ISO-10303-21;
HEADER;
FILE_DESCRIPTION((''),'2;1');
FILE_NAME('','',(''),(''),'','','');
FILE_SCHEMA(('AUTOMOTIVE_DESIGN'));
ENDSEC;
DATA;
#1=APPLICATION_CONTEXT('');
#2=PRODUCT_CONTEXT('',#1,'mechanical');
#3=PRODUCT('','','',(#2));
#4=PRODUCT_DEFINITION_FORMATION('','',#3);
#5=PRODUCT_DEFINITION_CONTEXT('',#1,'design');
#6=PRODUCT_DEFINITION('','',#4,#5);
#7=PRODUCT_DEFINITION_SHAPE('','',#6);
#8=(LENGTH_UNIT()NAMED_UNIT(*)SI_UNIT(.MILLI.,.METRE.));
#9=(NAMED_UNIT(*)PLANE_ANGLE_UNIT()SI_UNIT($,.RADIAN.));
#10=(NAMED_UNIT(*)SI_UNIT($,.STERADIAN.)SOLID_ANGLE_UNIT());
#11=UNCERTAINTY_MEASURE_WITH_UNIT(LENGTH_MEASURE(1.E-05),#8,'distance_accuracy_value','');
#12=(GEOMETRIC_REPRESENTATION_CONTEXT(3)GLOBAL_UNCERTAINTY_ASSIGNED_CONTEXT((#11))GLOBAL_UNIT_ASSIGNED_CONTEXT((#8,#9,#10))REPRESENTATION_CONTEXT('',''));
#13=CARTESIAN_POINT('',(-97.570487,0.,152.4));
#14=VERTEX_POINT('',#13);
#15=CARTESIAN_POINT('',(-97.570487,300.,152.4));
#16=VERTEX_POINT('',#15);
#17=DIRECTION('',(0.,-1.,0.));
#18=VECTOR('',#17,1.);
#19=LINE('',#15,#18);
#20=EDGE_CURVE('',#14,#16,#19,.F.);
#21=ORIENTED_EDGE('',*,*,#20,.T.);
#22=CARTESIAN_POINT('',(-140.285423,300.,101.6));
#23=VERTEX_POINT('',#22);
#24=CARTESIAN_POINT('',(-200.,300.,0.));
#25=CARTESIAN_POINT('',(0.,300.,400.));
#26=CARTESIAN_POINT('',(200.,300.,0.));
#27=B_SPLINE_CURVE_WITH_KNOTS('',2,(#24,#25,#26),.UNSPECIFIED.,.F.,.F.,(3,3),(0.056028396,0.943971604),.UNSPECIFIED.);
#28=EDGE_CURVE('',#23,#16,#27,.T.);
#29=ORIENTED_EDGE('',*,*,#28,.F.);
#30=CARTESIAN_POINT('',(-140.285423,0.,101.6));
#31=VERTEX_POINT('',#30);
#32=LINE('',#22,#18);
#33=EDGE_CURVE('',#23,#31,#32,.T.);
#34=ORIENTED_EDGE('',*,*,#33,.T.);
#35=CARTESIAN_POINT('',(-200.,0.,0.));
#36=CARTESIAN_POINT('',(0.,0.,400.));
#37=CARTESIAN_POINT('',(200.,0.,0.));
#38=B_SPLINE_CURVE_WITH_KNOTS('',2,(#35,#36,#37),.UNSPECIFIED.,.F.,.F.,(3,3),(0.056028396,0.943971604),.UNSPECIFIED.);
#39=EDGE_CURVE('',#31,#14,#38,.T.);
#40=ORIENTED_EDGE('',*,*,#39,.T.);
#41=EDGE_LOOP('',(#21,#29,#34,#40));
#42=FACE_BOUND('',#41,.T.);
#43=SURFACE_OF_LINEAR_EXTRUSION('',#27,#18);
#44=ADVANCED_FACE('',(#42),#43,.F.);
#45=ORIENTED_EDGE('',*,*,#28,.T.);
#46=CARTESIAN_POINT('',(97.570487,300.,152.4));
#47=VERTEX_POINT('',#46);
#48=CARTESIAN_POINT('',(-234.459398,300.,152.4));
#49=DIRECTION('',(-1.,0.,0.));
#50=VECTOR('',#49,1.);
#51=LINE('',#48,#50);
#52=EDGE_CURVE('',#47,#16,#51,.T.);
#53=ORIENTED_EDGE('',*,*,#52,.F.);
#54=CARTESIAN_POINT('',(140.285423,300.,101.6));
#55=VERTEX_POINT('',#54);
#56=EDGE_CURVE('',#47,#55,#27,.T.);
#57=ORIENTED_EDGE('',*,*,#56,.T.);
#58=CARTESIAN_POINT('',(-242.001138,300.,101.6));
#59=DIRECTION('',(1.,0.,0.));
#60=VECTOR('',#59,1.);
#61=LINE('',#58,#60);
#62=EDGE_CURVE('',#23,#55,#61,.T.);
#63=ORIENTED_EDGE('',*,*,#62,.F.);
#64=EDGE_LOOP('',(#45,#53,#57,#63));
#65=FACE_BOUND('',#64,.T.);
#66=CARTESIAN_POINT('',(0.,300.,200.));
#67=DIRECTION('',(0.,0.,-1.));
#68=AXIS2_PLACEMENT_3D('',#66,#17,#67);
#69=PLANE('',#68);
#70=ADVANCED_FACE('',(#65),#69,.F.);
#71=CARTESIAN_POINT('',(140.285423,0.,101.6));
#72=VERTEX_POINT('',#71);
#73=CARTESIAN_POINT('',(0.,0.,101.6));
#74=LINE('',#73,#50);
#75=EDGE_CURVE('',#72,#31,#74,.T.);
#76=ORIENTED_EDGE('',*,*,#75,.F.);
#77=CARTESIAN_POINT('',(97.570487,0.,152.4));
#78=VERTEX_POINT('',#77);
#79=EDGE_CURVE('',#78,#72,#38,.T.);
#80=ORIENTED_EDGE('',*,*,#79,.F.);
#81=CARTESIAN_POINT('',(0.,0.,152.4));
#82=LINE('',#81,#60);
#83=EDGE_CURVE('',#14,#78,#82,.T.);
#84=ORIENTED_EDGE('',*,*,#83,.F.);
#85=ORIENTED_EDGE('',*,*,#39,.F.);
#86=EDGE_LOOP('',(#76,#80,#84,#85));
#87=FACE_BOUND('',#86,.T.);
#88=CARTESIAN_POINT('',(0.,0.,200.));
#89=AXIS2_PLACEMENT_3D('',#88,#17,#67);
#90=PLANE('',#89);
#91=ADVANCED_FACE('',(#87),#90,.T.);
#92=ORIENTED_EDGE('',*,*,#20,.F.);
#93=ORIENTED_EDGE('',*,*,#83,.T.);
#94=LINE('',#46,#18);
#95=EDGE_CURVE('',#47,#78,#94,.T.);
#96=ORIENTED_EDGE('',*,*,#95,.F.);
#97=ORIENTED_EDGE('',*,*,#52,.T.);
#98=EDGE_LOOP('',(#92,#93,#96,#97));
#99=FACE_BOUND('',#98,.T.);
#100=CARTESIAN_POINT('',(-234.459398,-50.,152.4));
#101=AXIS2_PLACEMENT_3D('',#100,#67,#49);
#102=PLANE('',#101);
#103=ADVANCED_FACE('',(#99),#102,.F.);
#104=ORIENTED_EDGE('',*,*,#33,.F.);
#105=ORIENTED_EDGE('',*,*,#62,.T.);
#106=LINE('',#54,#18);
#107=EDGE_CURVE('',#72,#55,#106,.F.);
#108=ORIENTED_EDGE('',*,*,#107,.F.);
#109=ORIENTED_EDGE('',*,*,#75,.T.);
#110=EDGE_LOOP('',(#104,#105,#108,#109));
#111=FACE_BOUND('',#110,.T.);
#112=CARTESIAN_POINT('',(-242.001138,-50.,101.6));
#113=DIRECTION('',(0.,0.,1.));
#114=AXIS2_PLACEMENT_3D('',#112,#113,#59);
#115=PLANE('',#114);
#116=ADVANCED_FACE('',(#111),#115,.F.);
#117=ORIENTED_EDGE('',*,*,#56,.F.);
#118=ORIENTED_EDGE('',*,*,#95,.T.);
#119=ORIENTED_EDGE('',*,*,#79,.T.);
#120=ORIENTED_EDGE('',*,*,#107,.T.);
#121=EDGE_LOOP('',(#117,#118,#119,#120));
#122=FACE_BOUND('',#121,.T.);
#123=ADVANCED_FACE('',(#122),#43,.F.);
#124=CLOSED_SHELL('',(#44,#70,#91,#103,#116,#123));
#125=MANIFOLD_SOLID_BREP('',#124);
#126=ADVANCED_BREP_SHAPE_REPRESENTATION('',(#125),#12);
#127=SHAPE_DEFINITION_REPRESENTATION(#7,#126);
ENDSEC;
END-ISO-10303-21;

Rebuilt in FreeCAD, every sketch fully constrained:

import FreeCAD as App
import Part
import Sketcher

V = App.Vector
Q = App.Units.Quantity


def add_polygon(sketch, points):
    """Adds a closed chain of lines whose ends are joined by coincident constraints."""
    first, n = sketch.GeometryCount, len(points)
    for a, b in zip(points, points[1:] + points[:1]):
        sketch.addGeometry(Part.LineSegment(App.Vector(*a, 0), App.Vector(*b, 0)), False)
    for i in range(n):
        sketch.addConstraint(Sketcher.Constraint("Coincident", first + i, 2, first + (i + 1) % n, 1))

doc = App.newDocument("Part")
body = doc.addObject("PartDesign::Body", "Body")

# Sketch on XZ plane
sketch1 = doc.addObject("Sketcher::SketchObject", "Sketch")
body.addObject(sketch1)
sketch1.AttachmentSupport = (doc.XZ_Plane, [""])
sketch1.MapMode = "FlatFace"
sketch1.addGeometry(Part.LineSegment(V(200, 0, 0), V(-200, 0, 0)), False)
sketch1.addGeometry(Part.BSplineCurve([V(-200, 0, 0), V(0, 400, 0), V(200, 0, 0)], [3, 3], [0.056028396, 0.943971604], False, 2, [1, 1, 1], False), False)
sketch1.addConstraint(Sketcher.Constraint("Block", 1))
sketch1.addConstraint(Sketcher.Constraint("Coincident", 0, 1, 1, 2))
sketch1.addConstraint(Sketcher.Constraint("Coincident", 1, 1, 0, 2))
pad1 = doc.addObject("PartDesign::Pad", "Pad")
body.addObject(pad1)
pad1.Profile = sketch1
pad1.Length = 300
pad1.Reversed = True

# Sketch on XZ plane
sketch2 = doc.addObject("Sketcher::SketchObject", "Sketch001")
body.addObject(sketch2)
sketch2.AttachmentSupport = (doc.XZ_Plane, [""])
sketch2.MapMode = "FlatFace"
sketch2.AttachmentOffset = App.Placement(V(0, 0, -300), App.Rotation())
add_polygon(sketch2, [(-242.001138, -78.958136), (-242.001138, 101.6), (276.160786, 101.6), (276.160786, -78.958136)])  # lines 0-3
sketch2.addConstraint(Sketcher.Constraint("Vertical", 0))
sketch2.addConstraint(Sketcher.Constraint("Horizontal", 1))
sketch2.addConstraint(Sketcher.Constraint("Vertical", 2))
sketch2.addConstraint(Sketcher.Constraint("Horizontal", 3))
sketch2.addConstraint(Sketcher.Constraint("DistanceY", -1, 1, 0, 2, Q("101.6 mm")))
sketch2.addConstraint(Sketcher.Constraint("DistanceX", 1, 1, 1, 2, Q("518.161924 mm")))
sketch2.addConstraint(Sketcher.Constraint("DistanceY", 0, 1, 0, 2, Q("180.558136 mm")))
sketch2.addConstraint(Sketcher.Constraint("DistanceX", 0, 2, -1, 1, Q("242.001138 mm")))
pocket1 = doc.addObject("PartDesign::Pocket", "Pocket")
body.addObject(pocket1)
pocket1.Profile = sketch2
pocket1.Length = 350
pocket1.Reversed = True

# Sketch on XZ plane
sketch3 = doc.addObject("Sketcher::SketchObject", "Sketch002")
body.addObject(sketch3)
sketch3.AttachmentSupport = (doc.XZ_Plane, [""])
sketch3.MapMode = "FlatFace"
sketch3.AttachmentOffset = App.Placement(V(0, 0, -300), App.Rotation())
add_polygon(sketch3, [(-234.459398, 152.4), (-234.459398, 269.075159), (266.400886, 269.075159), (266.400886, 152.4)])  # lines 0-3
sketch3.addConstraint(Sketcher.Constraint("Vertical", 0))
sketch3.addConstraint(Sketcher.Constraint("Horizontal", 1))
sketch3.addConstraint(Sketcher.Constraint("Vertical", 2))
sketch3.addConstraint(Sketcher.Constraint("Horizontal", 3))
sketch3.addConstraint(Sketcher.Constraint("DistanceY", -1, 1, 2, 2, Q("152.4 mm")))
sketch3.addConstraint(Sketcher.Constraint("DistanceY", 0, 1, 0, 2, Q("116.675159 mm")))
sketch3.addConstraint(Sketcher.Constraint("DistanceX", 1, 1, 1, 2, Q("500.860284 mm")))
sketch3.addConstraint(Sketcher.Constraint("DistanceX", 0, 2, -1, 1, Q("234.459398 mm")))
pocket2 = doc.addObject("PartDesign::Pocket", "Pocket001")
body.addObject(pocket2)
pocket2.Profile = sketch3
pocket2.Length = 350
pocket2.Reversed = True

doc.recompute()
